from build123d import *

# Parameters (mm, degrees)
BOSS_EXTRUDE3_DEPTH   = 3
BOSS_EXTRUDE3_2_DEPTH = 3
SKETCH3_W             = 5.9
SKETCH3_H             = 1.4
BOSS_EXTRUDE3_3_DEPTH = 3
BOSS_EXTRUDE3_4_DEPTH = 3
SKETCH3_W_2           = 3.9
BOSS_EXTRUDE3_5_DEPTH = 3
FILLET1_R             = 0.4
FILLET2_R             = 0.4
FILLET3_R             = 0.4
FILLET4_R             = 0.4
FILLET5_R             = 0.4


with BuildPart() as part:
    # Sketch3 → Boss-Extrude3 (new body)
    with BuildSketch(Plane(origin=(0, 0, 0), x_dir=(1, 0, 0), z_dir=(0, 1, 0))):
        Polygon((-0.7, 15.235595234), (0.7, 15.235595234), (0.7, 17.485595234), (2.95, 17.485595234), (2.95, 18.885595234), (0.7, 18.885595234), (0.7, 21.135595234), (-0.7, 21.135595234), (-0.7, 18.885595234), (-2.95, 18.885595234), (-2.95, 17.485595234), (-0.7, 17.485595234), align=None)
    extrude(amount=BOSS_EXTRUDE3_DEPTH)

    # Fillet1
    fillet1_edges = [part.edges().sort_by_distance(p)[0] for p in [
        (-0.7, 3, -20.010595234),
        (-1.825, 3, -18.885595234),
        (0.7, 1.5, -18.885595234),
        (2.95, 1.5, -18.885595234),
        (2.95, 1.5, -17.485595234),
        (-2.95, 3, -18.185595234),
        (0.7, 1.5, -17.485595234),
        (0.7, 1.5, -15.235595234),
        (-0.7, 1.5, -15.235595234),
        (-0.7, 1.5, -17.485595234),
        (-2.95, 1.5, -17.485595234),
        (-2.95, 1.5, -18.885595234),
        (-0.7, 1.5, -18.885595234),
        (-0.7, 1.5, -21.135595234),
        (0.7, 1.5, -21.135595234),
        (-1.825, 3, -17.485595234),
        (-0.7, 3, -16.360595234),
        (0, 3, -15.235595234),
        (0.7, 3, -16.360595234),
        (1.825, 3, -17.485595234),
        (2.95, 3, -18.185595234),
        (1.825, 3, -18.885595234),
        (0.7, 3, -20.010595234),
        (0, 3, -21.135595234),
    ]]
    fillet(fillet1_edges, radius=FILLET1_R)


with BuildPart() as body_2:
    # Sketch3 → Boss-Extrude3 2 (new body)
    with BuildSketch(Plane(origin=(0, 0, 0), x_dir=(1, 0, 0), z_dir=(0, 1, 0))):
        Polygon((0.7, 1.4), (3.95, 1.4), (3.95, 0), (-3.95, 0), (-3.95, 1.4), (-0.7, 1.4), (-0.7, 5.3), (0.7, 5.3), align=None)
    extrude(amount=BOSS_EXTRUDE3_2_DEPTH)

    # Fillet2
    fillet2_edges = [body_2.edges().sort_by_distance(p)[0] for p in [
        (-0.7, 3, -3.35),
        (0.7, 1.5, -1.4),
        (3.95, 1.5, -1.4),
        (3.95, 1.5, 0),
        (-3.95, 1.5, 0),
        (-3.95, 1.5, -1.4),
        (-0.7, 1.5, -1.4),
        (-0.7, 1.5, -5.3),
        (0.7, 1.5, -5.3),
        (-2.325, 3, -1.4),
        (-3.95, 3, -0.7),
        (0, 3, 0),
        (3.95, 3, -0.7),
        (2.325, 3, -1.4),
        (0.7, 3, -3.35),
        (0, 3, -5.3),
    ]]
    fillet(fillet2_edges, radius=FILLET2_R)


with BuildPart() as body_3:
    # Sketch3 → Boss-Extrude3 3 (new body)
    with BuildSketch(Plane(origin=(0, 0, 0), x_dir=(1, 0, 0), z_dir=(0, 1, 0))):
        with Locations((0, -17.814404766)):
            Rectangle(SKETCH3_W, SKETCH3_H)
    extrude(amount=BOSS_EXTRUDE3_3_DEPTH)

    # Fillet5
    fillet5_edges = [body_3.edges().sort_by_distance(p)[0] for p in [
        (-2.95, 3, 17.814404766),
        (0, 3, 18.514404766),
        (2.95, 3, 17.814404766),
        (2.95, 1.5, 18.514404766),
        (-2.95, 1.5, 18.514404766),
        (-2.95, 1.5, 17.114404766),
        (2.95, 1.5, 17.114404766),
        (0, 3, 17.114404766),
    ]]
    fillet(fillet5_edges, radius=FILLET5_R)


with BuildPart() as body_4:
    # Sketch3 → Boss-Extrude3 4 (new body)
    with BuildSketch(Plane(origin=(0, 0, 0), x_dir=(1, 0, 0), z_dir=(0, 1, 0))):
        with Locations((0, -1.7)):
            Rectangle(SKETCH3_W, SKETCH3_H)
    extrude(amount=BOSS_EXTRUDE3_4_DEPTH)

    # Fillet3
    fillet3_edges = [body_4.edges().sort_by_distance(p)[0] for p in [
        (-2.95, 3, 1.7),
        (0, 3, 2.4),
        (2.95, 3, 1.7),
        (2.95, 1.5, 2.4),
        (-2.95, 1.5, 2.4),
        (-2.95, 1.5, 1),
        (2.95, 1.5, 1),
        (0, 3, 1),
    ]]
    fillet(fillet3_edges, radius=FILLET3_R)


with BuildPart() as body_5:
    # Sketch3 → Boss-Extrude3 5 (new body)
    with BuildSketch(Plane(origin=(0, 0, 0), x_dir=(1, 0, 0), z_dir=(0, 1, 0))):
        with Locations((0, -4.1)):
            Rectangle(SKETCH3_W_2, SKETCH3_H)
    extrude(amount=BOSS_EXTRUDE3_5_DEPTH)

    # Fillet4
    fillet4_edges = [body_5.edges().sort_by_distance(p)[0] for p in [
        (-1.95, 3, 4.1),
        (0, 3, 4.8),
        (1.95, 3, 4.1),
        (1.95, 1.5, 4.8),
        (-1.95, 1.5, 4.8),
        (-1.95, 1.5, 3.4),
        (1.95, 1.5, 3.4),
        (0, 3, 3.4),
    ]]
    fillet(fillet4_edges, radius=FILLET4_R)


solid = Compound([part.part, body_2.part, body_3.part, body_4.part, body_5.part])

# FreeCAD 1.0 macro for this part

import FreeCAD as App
import Part
import Sketcher


def edges_at(feature, points):
    """Names of the edges that pass closest to the given points."""
    edges = feature.Shape.Edges
    near = lambda p: min(range(len(edges)), key=lambda i: edges[i].distToShape(Part.Vertex(*p))[0])
    return sorted({f"Edge{near(p) + 1}" for p in points})

doc = App.newDocument("Part")
body = doc.addObject("PartDesign::Body", "Body")

# Sketch on XZ plane
sketch1 = body.newObject("Sketcher::SketchObject", "Sketch")
sketch1.AttachmentSupport = (doc.getObject("XZ_Plane"), [""])
sketch1.MapMode = "FlatFace"
sketch1.addGeometry(Part.LineSegment(App.Vector(-0.7, -15.235595, 0), App.Vector(0.7, -15.235595, 0)), False)
sketch1.addGeometry(Part.LineSegment(App.Vector(0.7, -15.235595, 0), App.Vector(0.7, -17.485595, 0)), False)
sketch1.addGeometry(Part.LineSegment(App.Vector(0.7, -17.485595, 0), App.Vector(2.95, -17.485595, 0)), False)
sketch1.addGeometry(Part.LineSegment(App.Vector(2.95, -17.485595, 0), App.Vector(2.95, -18.885595, 0)), False)
sketch1.addGeometry(Part.LineSegment(App.Vector(2.95, -18.885595, 0), App.Vector(0.7, -18.885595, 0)), False)
sketch1.addGeometry(Part.LineSegment(App.Vector(0.7, -18.885595, 0), App.Vector(0.7, -21.135595, 0)), False)
sketch1.addGeometry(Part.LineSegment(App.Vector(0.7, -21.135595, 0), App.Vector(-0.7, -21.135595, 0)), False)
sketch1.addGeometry(Part.LineSegment(App.Vector(-0.7, -21.135595, 0), App.Vector(-0.7, -18.885595, 0)), False)
sketch1.addGeometry(Part.LineSegment(App.Vector(-0.7, -18.885595, 0), App.Vector(-2.95, -18.885595, 0)), False)
sketch1.addGeometry(Part.LineSegment(App.Vector(-2.95, -18.885595, 0), App.Vector(-2.95, -17.485595, 0)), False)
sketch1.addGeometry(Part.LineSegment(App.Vector(-2.95, -17.485595, 0), App.Vector(-0.7, -17.485595, 0)), False)
sketch1.addGeometry(Part.LineSegment(App.Vector(-0.7, -17.485595, 0), App.Vector(-0.7, -15.235595, 0)), False)
sketch1.addConstraint(Sketcher.Constraint("Coincident", 0, 2, 1, 1))
sketch1.addConstraint(Sketcher.Constraint("Coincident", 1, 2, 2, 1))
sketch1.addConstraint(Sketcher.Constraint("Coincident", 2, 2, 3, 1))
sketch1.addConstraint(Sketcher.Constraint("Coincident", 3, 2, 4, 1))
sketch1.addConstraint(Sketcher.Constraint("Coincident", 4, 2, 5, 1))
sketch1.addConstraint(Sketcher.Constraint("Coincident", 5, 2, 6, 1))
sketch1.addConstraint(Sketcher.Constraint("Coincident", 6, 2, 7, 1))
sketch1.addConstraint(Sketcher.Constraint("Coincident", 7, 2, 8, 1))
sketch1.addConstraint(Sketcher.Constraint("Coincident", 8, 2, 9, 1))
sketch1.addConstraint(Sketcher.Constraint("Coincident", 9, 2, 10, 1))
sketch1.addConstraint(Sketcher.Constraint("Coincident", 10, 2, 11, 1))
sketch1.addConstraint(Sketcher.Constraint("Coincident", 11, 2, 0, 1))
sketch1.addConstraint(Sketcher.Constraint("Horizontal", 0))
sketch1.addConstraint(Sketcher.Constraint("Vertical", 1))
sketch1.addConstraint(Sketcher.Constraint("Horizontal", 2))
sketch1.addConstraint(Sketcher.Constraint("Vertical", 3))
sketch1.addConstraint(Sketcher.Constraint("Horizontal", 4))
sketch1.addConstraint(Sketcher.Constraint("Vertical", 5))
sketch1.addConstraint(Sketcher.Constraint("Horizontal", 6))
sketch1.addConstraint(Sketcher.Constraint("Vertical", 7))
sketch1.addConstraint(Sketcher.Constraint("Horizontal", 8))
sketch1.addConstraint(Sketcher.Constraint("Vertical", 9))
sketch1.addConstraint(Sketcher.Constraint("Horizontal", 10))
sketch1.addConstraint(Sketcher.Constraint("Vertical", 11))
sketch1.addConstraint(Sketcher.Constraint("Symmetric", 4, 2, 7, 2, -2))
sketch1.addConstraint(Sketcher.Constraint("Symmetric", 2, 2, 9, 2, -2))
sketch1.addConstraint(Sketcher.Constraint("Vertical", 1, 2, 4, 2))
sketch1.addConstraint(Sketcher.Constraint("Vertical", 7, 2, 10, 2))
sketch1.addConstraint(Sketcher.Constraint("Equal", 10, 1))
sketch1.addConstraint(Sketcher.Constraint("Equal", 6, 3))
sketch1.addConstraint(Sketcher.Constraint("Equal", 1, 5))
sketch1.addConstraint(Sketcher.Constraint("DistanceX", 0, 1, 0, 2, 1.4))
sketch1.addConstraint(Sketcher.Constraint("DistanceX", 2, 1, 2, 2, 2.25))
sketch1.addConstraint(Sketcher.Constraint("DistanceY", 0, 2, -1, 1, 15.235595))
pad1 = body.newObject("PartDesign::Pad", "Pad")
pad1.Profile = sketch1
pad1.Length = 3
pad1.Reversed = True
doc.recompute()

fillet = body.newObject("PartDesign::Fillet", "Fillet")
fillet.Base = (pad1, edges_at(pad1, [
    (-0.7, 3, -20.011),
    (-1.825, 3, -18.886),
    (0.7, 1.5, -18.886),
    (2.95, 1.5, -18.886),
    (2.95, 1.5, -17.486),
    (-2.95, 3, -18.186),
    (0.7, 1.5, -17.486),
    (0.7, 1.5, -15.236),
    (-0.7, 1.5, -15.236),
    (-0.7, 1.5, -17.486),
    (-2.95, 1.5, -17.486),
    (-2.95, 1.5, -18.886),
    (-0.7, 1.5, -18.886),
    (-0.7, 1.5, -21.136),
    (0.7, 1.5, -21.136),
    (-1.825, 3, -17.486),
    (-0.7, 3, -16.361),
    (0, 3, -15.236),
    (0.7, 3, -16.361),
    (1.825, 3, -17.486),
    (2.95, 3, -18.186),
    (1.825, 3, -18.886),
    (0.7, 3, -20.011),
    (0, 3, -21.136),
]))
fillet.Radius = 0.4
body2 = doc.addObject("PartDesign::Body", "Body001")

# Sketch on XZ plane
sketch2 = body2.newObject("Sketcher::SketchObject", "Sketch001")
sketch2.AttachmentSupport = (doc.getObject("XZ_Plane001"), [""])
sketch2.MapMode = "FlatFace"
sketch2.addGeometry(Part.LineSegment(App.Vector(3.95, -1.4, 0), App.Vector(0.7, -1.4, 0)), False)
sketch2.addGeometry(Part.LineSegment(App.Vector(0.7, -1.4, 0), App.Vector(0.7, -5.3, 0)), False)
sketch2.addGeometry(Part.LineSegment(App.Vector(0.7, -5.3, 0), App.Vector(-0.7, -5.3, 0)), False)
sketch2.addGeometry(Part.LineSegment(App.Vector(-0.7, -5.3, 0), App.Vector(-0.7, -1.4, 0)), False)
sketch2.addGeometry(Part.LineSegment(App.Vector(-0.7, -1.4, 0), App.Vector(-3.95, -1.4, 0)), False)
sketch2.addGeometry(Part.LineSegment(App.Vector(-3.95, -1.4, 0), App.Vector(-3.95, 0, 0)), False)
sketch2.addGeometry(Part.LineSegment(App.Vector(-3.95, 0, 0), App.Vector(3.95, 0, 0)), False)
sketch2.addGeometry(Part.LineSegment(App.Vector(3.95, 0, 0), App.Vector(3.95, -1.4, 0)), False)
sketch2.addConstraint(Sketcher.Constraint("Coincident", 0, 2, 1, 1))
sketch2.addConstraint(Sketcher.Constraint("Coincident", 1, 2, 2, 1))
sketch2.addConstraint(Sketcher.Constraint("Coincident", 2, 2, 3, 1))
sketch2.addConstraint(Sketcher.Constraint("Coincident", 3, 2, 4, 1))
sketch2.addConstraint(Sketcher.Constraint("Coincident", 4, 2, 5, 1))
sketch2.addConstraint(Sketcher.Constraint("Coincident", 5, 2, 6, 1))
sketch2.addConstraint(Sketcher.Constraint("Coincident", 6, 2, 7, 1))
sketch2.addConstraint(Sketcher.Constraint("Coincident", 7, 2, 0, 1))
sketch2.addConstraint(Sketcher.Constraint("Horizontal", 0))
sketch2.addConstraint(Sketcher.Constraint("Vertical", 1))
sketch2.addConstraint(Sketcher.Constraint("Horizontal", 2))
sketch2.addConstraint(Sketcher.Constraint("Vertical", 3))
sketch2.addConstraint(Sketcher.Constraint("Horizontal", 4))
sketch2.addConstraint(Sketcher.Constraint("Vertical", 5))
sketch2.addConstraint(Sketcher.Constraint("Horizontal", 6))
sketch2.addConstraint(Sketcher.Constraint("Vertical", 7))
sketch2.addConstraint(Sketcher.Constraint("Symmetric", 5, 2, 6, 2, -1, 1))
sketch2.addConstraint(Sketcher.Constraint("Symmetric", 0, 2, 3, 2, -2))
sketch2.addConstraint(Sketcher.Constraint("Equal", 2, 5))
sketch2.addConstraint(Sketcher.Constraint("DistanceX", 2, 2, 2, 1, 1.4))
sketch2.addConstraint(Sketcher.Constraint("DistanceX", 6, 1, 6, 2, 7.9))
sketch2.addConstraint(Sketcher.Constraint("DistanceY", 1, 2, 1, 1, 3.9))
pad2 = body2.newObject("PartDesign::Pad", "Pad001")
pad2.Profile = sketch2
pad2.Length = 3
pad2.Reversed = True
doc.recompute()

fillet2 = body2.newObject("PartDesign::Fillet", "Fillet001")
fillet2.Base = (pad2, edges_at(pad2, [
    (-0.7, 3, -3.35),
    (0.7, 1.5, -1.4),
    (3.95, 1.5, -1.4),
    (3.95, 1.5, 0),
    (-3.95, 1.5, 0),
    (-3.95, 1.5, -1.4),
    (-0.7, 1.5, -1.4),
    (-0.7, 1.5, -5.3),
    (0.7, 1.5, -5.3),
    (-2.325, 3, -1.4),
    (-3.95, 3, -0.7),
    (0, 3, 0),
    (3.95, 3, -0.7),
    (2.325, 3, -1.4),
    (0.7, 3, -3.35),
    (0, 3, -5.3),
]))
fillet2.Radius = 0.4
body3 = doc.addObject("PartDesign::Body", "Body002")

# Sketch on XZ plane
sketch3 = body3.newObject("Sketcher::SketchObject", "Sketch002")
sketch3.AttachmentSupport = (doc.getObject("XZ_Plane002"), [""])
sketch3.MapMode = "FlatFace"
sketch3.addGeometry(Part.LineSegment(App.Vector(-2.95, 17.114405, 0), App.Vector(-2.95, 18.514405, 0)), False)
sketch3.addGeometry(Part.LineSegment(App.Vector(-2.95, 18.514405, 0), App.Vector(2.95, 18.514405, 0)), False)
sketch3.addGeometry(Part.LineSegment(App.Vector(2.95, 18.514405, 0), App.Vector(2.95, 17.114405, 0)), False)
sketch3.addGeometry(Part.LineSegment(App.Vector(2.95, 17.114405, 0), App.Vector(-2.95, 17.114405, 0)), False)
sketch3.addConstraint(Sketcher.Constraint("Coincident", 0, 2, 1, 1))
sketch3.addConstraint(Sketcher.Constraint("Coincident", 1, 2, 2, 1))
sketch3.addConstraint(Sketcher.Constraint("Coincident", 2, 2, 3, 1))
sketch3.addConstraint(Sketcher.Constraint("Coincident", 3, 2, 0, 1))
sketch3.addConstraint(Sketcher.Constraint("Vertical", 0))
sketch3.addConstraint(Sketcher.Constraint("Horizontal", 1))
sketch3.addConstraint(Sketcher.Constraint("Vertical", 2))
sketch3.addConstraint(Sketcher.Constraint("Horizontal", 3))
sketch3.addConstraint(Sketcher.Constraint("DistanceX", 1, 1, 1, 2, 5.9))
sketch3.addConstraint(Sketcher.Constraint("DistanceY", 0, 1, 0, 2, 1.4))
sketch3.addConstraint(Sketcher.Constraint("DistanceX", 0, 2, -1, 1, 2.95))
sketch3.addConstraint(Sketcher.Constraint("DistanceY", -1, 1, 0, 2, 18.514405))
pad3 = body3.newObject("PartDesign::Pad", "Pad002")
pad3.Profile = sketch3
pad3.Length = 3
pad3.Reversed = True
doc.recompute()

fillet3 = body3.newObject("PartDesign::Fillet", "Fillet002")
fillet3.Base = (pad3, edges_at(pad3, [
    (-2.95, 3, 17.814),
    (0, 3, 18.514),
    (2.95, 3, 17.814),
    (2.95, 1.5, 18.514),
    (-2.95, 1.5, 18.514),
    (-2.95, 1.5, 17.114),
    (2.95, 1.5, 17.114),
    (0, 3, 17.114),
]))
fillet3.Radius = 0.4
body4 = doc.addObject("PartDesign::Body", "Body003")

# Sketch on XZ plane
sketch4 = body4.newObject("Sketcher::SketchObject", "Sketch003")
sketch4.AttachmentSupport = (doc.getObject("XZ_Plane003"), [""])
sketch4.MapMode = "FlatFace"
sketch4.addGeometry(Part.LineSegment(App.Vector(-2.95, 1, 0), App.Vector(-2.95, 2.4, 0)), False)
sketch4.addGeometry(Part.LineSegment(App.Vector(-2.95, 2.4, 0), App.Vector(2.95, 2.4, 0)), False)
sketch4.addGeometry(Part.LineSegment(App.Vector(2.95, 2.4, 0), App.Vector(2.95, 1, 0)), False)
sketch4.addGeometry(Part.LineSegment(App.Vector(2.95, 1, 0), App.Vector(-2.95, 1, 0)), False)
sketch4.addConstraint(Sketcher.Constraint("Coincident", 0, 2, 1, 1))
sketch4.addConstraint(Sketcher.Constraint("Coincident", 1, 2, 2, 1))
sketch4.addConstraint(Sketcher.Constraint("Coincident", 2, 2, 3, 1))
sketch4.addConstraint(Sketcher.Constraint("Coincident", 3, 2, 0, 1))
sketch4.addConstraint(Sketcher.Constraint("Vertical", 0))
sketch4.addConstraint(Sketcher.Constraint("Horizontal", 1))
sketch4.addConstraint(Sketcher.Constraint("Vertical", 2))
sketch4.addConstraint(Sketcher.Constraint("Horizontal", 3))
sketch4.addConstraint(Sketcher.Constraint("DistanceX", 1, 1, 1, 2, 5.9))
sketch4.addConstraint(Sketcher.Constraint("DistanceY", 0, 1, 0, 2, 1.4))
sketch4.addConstraint(Sketcher.Constraint("DistanceY", -1, 1, 2, 2, 1.0))
sketch4.addConstraint(Sketcher.Constraint("DistanceX", 0, 2, -1, 1, 2.95))
pad4 = body4.newObject("PartDesign::Pad", "Pad003")
pad4.Profile = sketch4
pad4.Length = 3
pad4.Reversed = True
doc.recompute()

fillet4 = body4.newObject("PartDesign::Fillet", "Fillet003")
fillet4.Base = (pad4, edges_at(pad4, [
    (-2.95, 3, 1.7),
    (0, 3, 2.4),
    (2.95, 3, 1.7),
    (2.95, 1.5, 2.4),
    (-2.95, 1.5, 2.4),
    (-2.95, 1.5, 1),
    (2.95, 1.5, 1),
    (0, 3, 1),
]))
fillet4.Radius = 0.4
body5 = doc.addObject("PartDesign::Body", "Body004")

# Sketch on XZ plane
sketch5 = body5.newObject("Sketcher::SketchObject", "Sketch004")
sketch5.AttachmentSupport = (doc.getObject("XZ_Plane004"), [""])
sketch5.MapMode = "FlatFace"
sketch5.addGeometry(Part.LineSegment(App.Vector(-1.95, 3.4, 0), App.Vector(-1.95, 4.8, 0)), False)
sketch5.addGeometry(Part.LineSegment(App.Vector(-1.95, 4.8, 0), App.Vector(1.95, 4.8, 0)), False)
sketch5.addGeometry(Part.LineSegment(App.Vector(1.95, 4.8, 0), App.Vector(1.95, 3.4, 0)), False)
sketch5.addGeometry(Part.LineSegment(App.Vector(1.95, 3.4, 0), App.Vector(-1.95, 3.4, 0)), False)
sketch5.addConstraint(Sketcher.Constraint("Coincident", 0, 2, 1, 1))
sketch5.addConstraint(Sketcher.Constraint("Coincident", 1, 2, 2, 1))
sketch5.addConstraint(Sketcher.Constraint("Coincident", 2, 2, 3, 1))
sketch5.addConstraint(Sketcher.Constraint("Coincident", 3, 2, 0, 1))
sketch5.addConstraint(Sketcher.Constraint("Vertical", 0))
sketch5.addConstraint(Sketcher.Constraint("Horizontal", 1))
sketch5.addConstraint(Sketcher.Constraint("Vertical", 2))
sketch5.addConstraint(Sketcher.Constraint("Horizontal", 3))
sketch5.addConstraint(Sketcher.Constraint("DistanceX", 1, 1, 1, 2, 3.9))
sketch5.addConstraint(Sketcher.Constraint("DistanceY", 0, 1, 0, 2, 1.4))
sketch5.addConstraint(Sketcher.Constraint("DistanceY", -1, 1, 0, 2, 4.8))
sketch5.addConstraint(Sketcher.Constraint("DistanceX", 0, 2, -1, 1, 1.95))
pad5 = body5.newObject("PartDesign::Pad", "Pad004")
pad5.Profile = sketch5
pad5.Length = 3
pad5.Reversed = True
doc.recompute()

fillet5 = body5.newObject("PartDesign::Fillet", "Fillet004")
fillet5.Base = (pad5, edges_at(pad5, [
    (-1.95, 3, 4.1),
    (0, 3, 4.8),
    (1.95, 3, 4.1),
    (1.95, 1.5, 4.8),
    (-1.95, 1.5, 4.8),
    (-1.95, 1.5, 3.4),
    (1.95, 1.5, 3.4),
    (0, 3, 3.4),
]))
fillet5.Radius = 0.4

doc.recompute()
